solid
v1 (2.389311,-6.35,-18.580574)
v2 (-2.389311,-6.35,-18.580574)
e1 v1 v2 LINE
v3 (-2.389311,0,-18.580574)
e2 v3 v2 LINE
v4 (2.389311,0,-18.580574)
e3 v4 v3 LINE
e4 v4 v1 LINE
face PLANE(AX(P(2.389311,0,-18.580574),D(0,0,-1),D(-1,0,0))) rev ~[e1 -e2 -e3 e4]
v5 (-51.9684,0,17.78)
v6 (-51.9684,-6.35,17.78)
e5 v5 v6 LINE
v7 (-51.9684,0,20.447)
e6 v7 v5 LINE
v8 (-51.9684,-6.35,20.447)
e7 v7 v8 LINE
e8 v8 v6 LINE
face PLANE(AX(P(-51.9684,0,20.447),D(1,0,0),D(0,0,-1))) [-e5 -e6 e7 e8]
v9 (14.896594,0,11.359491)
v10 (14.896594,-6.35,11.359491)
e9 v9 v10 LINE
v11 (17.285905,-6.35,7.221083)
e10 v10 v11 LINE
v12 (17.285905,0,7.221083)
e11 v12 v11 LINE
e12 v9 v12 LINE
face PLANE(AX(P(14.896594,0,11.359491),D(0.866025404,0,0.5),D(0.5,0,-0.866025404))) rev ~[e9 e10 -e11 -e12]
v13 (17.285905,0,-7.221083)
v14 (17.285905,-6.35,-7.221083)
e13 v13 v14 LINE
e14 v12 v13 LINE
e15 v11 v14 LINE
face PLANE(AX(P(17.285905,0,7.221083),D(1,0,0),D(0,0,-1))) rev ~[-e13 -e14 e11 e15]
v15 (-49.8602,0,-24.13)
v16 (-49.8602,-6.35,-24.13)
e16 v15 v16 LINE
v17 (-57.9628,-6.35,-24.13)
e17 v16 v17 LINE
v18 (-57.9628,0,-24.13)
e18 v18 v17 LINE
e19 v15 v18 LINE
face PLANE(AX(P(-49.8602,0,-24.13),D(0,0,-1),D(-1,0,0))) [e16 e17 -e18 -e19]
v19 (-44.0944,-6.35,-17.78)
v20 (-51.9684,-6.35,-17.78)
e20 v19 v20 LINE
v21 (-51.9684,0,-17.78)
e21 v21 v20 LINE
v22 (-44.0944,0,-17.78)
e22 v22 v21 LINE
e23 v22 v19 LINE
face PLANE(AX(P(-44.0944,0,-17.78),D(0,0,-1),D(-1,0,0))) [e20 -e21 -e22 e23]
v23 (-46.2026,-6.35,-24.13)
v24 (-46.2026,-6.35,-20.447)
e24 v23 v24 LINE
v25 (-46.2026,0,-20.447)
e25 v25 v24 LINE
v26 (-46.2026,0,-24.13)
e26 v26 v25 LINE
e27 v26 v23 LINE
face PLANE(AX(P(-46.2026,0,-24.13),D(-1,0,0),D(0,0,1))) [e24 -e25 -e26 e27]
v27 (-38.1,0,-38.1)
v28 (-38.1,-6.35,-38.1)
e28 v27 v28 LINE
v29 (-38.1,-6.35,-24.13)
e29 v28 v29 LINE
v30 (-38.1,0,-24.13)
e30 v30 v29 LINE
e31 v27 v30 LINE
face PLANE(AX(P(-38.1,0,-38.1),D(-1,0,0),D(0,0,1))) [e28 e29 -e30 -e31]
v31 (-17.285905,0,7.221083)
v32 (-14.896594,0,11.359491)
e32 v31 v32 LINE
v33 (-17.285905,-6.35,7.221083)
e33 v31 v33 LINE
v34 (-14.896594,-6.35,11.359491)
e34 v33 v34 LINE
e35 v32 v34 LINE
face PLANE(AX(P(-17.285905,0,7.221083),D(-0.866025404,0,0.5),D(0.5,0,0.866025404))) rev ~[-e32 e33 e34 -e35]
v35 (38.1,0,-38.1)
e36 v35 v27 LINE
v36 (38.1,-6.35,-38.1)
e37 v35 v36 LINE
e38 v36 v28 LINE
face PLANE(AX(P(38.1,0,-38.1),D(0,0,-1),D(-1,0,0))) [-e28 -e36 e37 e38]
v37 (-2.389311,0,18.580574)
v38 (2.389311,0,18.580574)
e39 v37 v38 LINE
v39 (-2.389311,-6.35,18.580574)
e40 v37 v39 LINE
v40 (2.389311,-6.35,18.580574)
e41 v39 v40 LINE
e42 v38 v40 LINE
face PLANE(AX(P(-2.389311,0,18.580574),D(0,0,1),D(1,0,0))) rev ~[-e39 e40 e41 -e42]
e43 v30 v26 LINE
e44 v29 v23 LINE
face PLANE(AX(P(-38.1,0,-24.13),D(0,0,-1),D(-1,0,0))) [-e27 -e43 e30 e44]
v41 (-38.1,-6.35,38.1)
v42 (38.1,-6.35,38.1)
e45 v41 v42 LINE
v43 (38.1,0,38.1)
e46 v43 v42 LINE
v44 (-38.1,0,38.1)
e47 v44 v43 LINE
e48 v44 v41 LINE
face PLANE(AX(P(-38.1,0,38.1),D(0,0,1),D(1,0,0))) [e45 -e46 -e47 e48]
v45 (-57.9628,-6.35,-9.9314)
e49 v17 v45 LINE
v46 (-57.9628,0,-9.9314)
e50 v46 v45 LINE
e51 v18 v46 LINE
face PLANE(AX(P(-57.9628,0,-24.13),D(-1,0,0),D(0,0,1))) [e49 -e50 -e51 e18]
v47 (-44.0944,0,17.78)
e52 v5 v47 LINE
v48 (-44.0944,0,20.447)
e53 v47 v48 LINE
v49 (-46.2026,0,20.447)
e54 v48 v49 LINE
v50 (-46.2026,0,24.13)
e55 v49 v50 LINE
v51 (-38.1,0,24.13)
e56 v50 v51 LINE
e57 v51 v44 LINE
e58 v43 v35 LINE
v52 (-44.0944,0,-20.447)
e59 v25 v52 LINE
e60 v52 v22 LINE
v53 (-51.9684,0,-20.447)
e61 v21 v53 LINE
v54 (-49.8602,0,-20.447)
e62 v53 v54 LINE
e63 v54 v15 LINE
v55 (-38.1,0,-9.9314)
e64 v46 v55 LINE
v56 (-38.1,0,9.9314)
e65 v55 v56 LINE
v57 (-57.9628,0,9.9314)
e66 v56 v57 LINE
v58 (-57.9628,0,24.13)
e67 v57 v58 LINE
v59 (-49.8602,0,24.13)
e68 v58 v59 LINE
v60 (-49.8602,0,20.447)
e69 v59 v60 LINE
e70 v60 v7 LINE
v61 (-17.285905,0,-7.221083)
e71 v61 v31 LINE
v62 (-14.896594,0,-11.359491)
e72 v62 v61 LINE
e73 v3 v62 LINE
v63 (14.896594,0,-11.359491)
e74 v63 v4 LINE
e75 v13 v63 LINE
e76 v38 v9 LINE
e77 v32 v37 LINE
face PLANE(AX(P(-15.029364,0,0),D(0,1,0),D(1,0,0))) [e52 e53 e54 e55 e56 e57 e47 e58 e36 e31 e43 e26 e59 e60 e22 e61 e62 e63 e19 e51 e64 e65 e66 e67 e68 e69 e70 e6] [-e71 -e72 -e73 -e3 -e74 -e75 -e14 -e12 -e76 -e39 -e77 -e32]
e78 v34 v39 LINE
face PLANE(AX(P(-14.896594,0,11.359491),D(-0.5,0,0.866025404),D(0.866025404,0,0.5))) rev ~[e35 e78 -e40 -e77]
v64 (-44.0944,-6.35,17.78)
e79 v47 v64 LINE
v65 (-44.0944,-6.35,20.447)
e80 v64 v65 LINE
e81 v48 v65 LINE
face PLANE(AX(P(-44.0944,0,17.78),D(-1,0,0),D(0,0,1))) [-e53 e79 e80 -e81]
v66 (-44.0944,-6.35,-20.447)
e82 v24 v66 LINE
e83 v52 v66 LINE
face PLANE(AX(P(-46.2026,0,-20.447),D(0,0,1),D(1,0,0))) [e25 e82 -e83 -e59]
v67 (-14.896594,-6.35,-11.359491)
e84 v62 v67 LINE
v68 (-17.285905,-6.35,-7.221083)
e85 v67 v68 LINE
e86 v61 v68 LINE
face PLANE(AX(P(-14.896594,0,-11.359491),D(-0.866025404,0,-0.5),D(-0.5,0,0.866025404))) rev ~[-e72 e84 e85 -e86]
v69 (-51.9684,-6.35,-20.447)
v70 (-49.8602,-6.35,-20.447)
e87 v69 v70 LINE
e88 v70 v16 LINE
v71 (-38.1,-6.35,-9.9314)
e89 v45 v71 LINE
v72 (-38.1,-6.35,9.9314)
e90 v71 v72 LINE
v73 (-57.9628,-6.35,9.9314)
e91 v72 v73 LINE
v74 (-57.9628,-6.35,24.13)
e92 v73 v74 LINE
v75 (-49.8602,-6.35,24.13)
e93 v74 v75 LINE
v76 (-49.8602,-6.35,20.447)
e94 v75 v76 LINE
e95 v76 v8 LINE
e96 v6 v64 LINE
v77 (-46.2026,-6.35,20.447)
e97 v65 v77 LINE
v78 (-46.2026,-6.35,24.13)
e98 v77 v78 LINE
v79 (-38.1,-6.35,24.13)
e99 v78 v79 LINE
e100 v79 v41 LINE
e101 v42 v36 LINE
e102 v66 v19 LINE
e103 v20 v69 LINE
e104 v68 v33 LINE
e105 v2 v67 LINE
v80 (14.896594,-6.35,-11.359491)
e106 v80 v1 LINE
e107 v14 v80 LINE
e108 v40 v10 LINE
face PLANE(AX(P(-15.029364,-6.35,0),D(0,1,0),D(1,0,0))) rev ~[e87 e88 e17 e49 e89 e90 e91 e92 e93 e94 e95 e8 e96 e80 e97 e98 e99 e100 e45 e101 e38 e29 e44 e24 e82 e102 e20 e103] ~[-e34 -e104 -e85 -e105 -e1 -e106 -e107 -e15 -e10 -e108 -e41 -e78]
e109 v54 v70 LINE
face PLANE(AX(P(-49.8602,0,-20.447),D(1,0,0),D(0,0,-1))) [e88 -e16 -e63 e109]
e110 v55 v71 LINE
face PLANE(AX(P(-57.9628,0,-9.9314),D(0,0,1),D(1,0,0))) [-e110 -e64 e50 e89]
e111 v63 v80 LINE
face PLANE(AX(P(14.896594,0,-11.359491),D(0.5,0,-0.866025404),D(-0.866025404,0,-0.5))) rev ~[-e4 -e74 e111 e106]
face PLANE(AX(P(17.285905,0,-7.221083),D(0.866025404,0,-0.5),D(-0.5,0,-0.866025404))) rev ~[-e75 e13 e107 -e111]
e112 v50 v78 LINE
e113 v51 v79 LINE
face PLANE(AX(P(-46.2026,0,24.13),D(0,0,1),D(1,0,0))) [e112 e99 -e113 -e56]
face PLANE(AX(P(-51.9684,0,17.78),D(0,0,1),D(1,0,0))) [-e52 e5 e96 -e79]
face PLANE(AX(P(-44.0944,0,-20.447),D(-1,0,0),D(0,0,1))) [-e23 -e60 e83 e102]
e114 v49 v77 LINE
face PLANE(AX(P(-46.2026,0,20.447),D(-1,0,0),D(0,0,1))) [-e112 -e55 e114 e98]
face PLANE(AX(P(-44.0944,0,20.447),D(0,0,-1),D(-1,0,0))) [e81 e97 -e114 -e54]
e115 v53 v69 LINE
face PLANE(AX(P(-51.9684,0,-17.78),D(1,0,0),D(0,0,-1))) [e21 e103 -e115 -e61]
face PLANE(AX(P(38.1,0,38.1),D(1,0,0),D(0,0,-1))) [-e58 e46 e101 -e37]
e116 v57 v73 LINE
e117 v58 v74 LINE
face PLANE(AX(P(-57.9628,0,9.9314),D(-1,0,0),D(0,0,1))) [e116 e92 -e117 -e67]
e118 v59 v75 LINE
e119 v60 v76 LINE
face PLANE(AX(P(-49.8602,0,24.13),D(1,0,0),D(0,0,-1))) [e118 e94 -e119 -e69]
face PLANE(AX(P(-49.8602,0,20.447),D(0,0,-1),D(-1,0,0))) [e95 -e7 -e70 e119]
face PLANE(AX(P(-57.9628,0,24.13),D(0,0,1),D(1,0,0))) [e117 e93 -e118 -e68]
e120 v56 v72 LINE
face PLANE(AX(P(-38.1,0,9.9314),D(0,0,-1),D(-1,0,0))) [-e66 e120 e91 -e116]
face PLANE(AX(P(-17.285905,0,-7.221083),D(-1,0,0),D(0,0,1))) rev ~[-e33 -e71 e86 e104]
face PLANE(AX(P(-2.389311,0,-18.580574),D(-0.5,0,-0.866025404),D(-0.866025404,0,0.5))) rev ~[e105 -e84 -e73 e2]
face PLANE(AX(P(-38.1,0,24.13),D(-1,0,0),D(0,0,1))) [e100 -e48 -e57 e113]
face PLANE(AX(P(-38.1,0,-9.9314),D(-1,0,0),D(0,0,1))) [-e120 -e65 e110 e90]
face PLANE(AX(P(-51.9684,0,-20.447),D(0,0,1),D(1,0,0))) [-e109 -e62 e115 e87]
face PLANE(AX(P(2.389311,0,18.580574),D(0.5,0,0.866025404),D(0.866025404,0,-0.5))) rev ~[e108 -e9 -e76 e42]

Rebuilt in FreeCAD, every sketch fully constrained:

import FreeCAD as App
import Part
import Sketcher
from FreeCAD import Vector
Q = App.Units.Quantity


def add_polygon(sketch, points):
    """Adds a closed chain of lines whose ends are joined by coincident constraints."""
    first, n = sketch.GeometryCount, len(points)
    for a, b in zip(points, points[1:] + points[:1]):
        sketch.addGeometry(Part.LineSegment(App.Vector(*a, 0), App.Vector(*b, 0)), False)
    for i in range(n):
        sketch.addConstraint(Sketcher.Constraint("Coincident", first + i, 2, first + (i + 1) % n, 1))

doc = App.newDocument("Part")
body = doc.addObject("PartDesign::Body", "Body")

# Sketch on XZ plane
sketch1 = body.newObject("Sketcher::SketchObject", "Sketch")
sketch1.AttachmentSupport = (doc.getObject("XZ_Plane"), [""])
sketch1.MapMode = "FlatFace"
add_polygon(sketch1, [(-38.1, 38.1), (38.1, 38.1), (38.1, -38.1), (-38.1, -38.1), (-38.1, -24.1), (-46.2, -24.1), (-46.2, -20.4), (-44.1, -20.4), (-44.1, -17.8), (-52, -17.8), (-52, -20.4), (-49.9, -20.4), (-49.9, -24.1), (-58, -24.1), (-58, -9.9), (-38.1, -9.9), (-38.1, 9.9), (-58, 9.9), (-58, 24.1), (-49.9, 24.1), (-49.9, 20.4), (-52, 20.4), (-52, 17.8), (-44.1, 17.8), (-44.1, 20.4), (-46.2, 20.4), (-46.2, 24.1), (-38.1, 24.1)])  # lines 0-27
add_polygon(sketch1, [(2.4, 18.6), (-2.4, 18.6), (-14.9, 11.4), (-17.3, 7.2), (-17.3, -7.2), (-14.9, -11.4), (-2.4, -18.6), (2.4, -18.6), (14.9, -11.4), (17.3, -7.2), (17.3, 7.2), (14.9, 11.4)])  # lines 28-39
sketch1.addConstraint([
    Sketcher.Constraint("Horizontal", 0),
    Sketcher.Constraint("Vertical", 1),
    Sketcher.Constraint("Horizontal", 2),
    Sketcher.Constraint("Vertical", 3),
    Sketcher.Constraint("Horizontal", 4),
    Sketcher.Constraint("Vertical", 5),
    Sketcher.Constraint("Horizontal", 6),
    Sketcher.Constraint("Vertical", 7),
    Sketcher.Constraint("Horizontal", 8),
    Sketcher.Constraint("Vertical", 9),
    Sketcher.Constraint("Horizontal", 10),
    Sketcher.Constraint("Vertical", 11),
    Sketcher.Constraint("Horizontal", 12),
    Sketcher.Constraint("Vertical", 13),
    Sketcher.Constraint("Horizontal", 14),
    Sketcher.Constraint("Vertical", 15),
    Sketcher.Constraint("Horizontal", 16),
    Sketcher.Constraint("Vertical", 17),
    Sketcher.Constraint("Horizontal", 18),
    Sketcher.Constraint("Vertical", 19),
    Sketcher.Constraint("Horizontal", 20),
    Sketcher.Constraint("Vertical", 21),
    Sketcher.Constraint("Horizontal", 22),
    Sketcher.Constraint("Vertical", 23),
    Sketcher.Constraint("Horizontal", 24),
    Sketcher.Constraint("Vertical", 25),
    Sketcher.Constraint("Horizontal", 26),
    Sketcher.Constraint("Vertical", 27),
    Sketcher.Constraint("Horizontal", 28),
    Sketcher.Constraint("Vertical", 31),
    Sketcher.Constraint("Horizontal", 34),
    Sketcher.Constraint("Vertical", 37),
    Sketcher.Constraint("Symmetric", 0, 2, 2, 2, -1, 1),
    Sketcher.Constraint("Symmetric", 28, 2, 34, 2, -1, 1),
    Sketcher.Constraint("Symmetric", 29, 2, 35, 2, -1, 1),
    Sketcher.Constraint("Symmetric", 30, 2, 36, 2, -1, 1),
    Sketcher.Constraint("Symmetric", 32, 2, 38, 2, -1, 1),
    Sketcher.Constraint("Symmetric", 32, 2, 35, 2, -2),
    Sketcher.Constraint("Symmetric", 13, 2, 16, 2, -1),
    Sketcher.Constraint("Symmetric", 11, 2, 18, 2, -1),
    Sketcher.Constraint("Symmetric", 9, 2, 20, 2, -1),
    Sketcher.Constraint("Symmetric", 7, 2, 22, 2, -1),
    Sketcher.Constraint("Symmetric", 5, 2, 24, 2, -1),
    Sketcher.Constraint("Symmetric", 3, 2, 26, 2, -1),
    Sketcher.Constraint("Perpendicular", 29, 32),
    Sketcher.Constraint("Perpendicular", 30, 33),
    Sketcher.Constraint("Perpendicular", 35, 38),
    Sketcher.Constraint("Perpendicular", 36, 39),
    Sketcher.Constraint("Horizontal", 6, 2, 9, 2),
    Sketcher.Constraint("Horizontal", 4, 2, 11, 2),
    Sketcher.Constraint("Horizontal", 31, 2, 36, 2),
    Sketcher.Constraint("Vertical", 3, 2, 14, 2),
    Sketcher.Constraint("Equal", 6, 10),
    Sketcher.Constraint("Equal", 4, 12),
    Sketcher.Constraint("Equal", 2, 1),
    Sketcher.Constraint("Equal", 16, 15),
    Sketcher.Constraint("DistanceX", 0, 1, 0, 2, Q("3 in")),
    Sketcher.Constraint("Angle", 29, Q("-150 deg")),
    Sketcher.Constraint("DistanceX", 8, 2, 8, 1, Q("0.31 in")),
    Sketcher.Constraint("DistanceY", 3, 1, 3, 2, Q("0.55 in")),
    Sketcher.Constraint("DistanceY", 7, 2, -1, 1, Q("0.7 in")),
    Sketcher.Constraint("DistanceX", 4, 2, 4, 1, Q("0.319 in")),
    Sketcher.Constraint("DistanceX", 6, 1, 6, 2, Q("0.083 in")),
    Sketcher.Constraint("DistanceY", 5, 1, 5, 2, Q("0.145 in")),
    Sketcher.Constraint("DistanceX", 28, 2, 28, 1, Q("4.778621 mm")),
    Sketcher.Constraint("DistanceX", 31, 2, 35, 2, Q("32.182499 mm")),
    Sketcher.Constraint("Distance", 30, Q("4.778621 mm")),
    Sketcher.Constraint("DistanceY", 31, 2, 31, 1, Q("14.442167 mm")),
])
pad1 = body.newObject("PartDesign::Pad", "Pad")
pad1.Profile = sketch1
pad1.Length = Q("0.25 in")

doc.recompute()
